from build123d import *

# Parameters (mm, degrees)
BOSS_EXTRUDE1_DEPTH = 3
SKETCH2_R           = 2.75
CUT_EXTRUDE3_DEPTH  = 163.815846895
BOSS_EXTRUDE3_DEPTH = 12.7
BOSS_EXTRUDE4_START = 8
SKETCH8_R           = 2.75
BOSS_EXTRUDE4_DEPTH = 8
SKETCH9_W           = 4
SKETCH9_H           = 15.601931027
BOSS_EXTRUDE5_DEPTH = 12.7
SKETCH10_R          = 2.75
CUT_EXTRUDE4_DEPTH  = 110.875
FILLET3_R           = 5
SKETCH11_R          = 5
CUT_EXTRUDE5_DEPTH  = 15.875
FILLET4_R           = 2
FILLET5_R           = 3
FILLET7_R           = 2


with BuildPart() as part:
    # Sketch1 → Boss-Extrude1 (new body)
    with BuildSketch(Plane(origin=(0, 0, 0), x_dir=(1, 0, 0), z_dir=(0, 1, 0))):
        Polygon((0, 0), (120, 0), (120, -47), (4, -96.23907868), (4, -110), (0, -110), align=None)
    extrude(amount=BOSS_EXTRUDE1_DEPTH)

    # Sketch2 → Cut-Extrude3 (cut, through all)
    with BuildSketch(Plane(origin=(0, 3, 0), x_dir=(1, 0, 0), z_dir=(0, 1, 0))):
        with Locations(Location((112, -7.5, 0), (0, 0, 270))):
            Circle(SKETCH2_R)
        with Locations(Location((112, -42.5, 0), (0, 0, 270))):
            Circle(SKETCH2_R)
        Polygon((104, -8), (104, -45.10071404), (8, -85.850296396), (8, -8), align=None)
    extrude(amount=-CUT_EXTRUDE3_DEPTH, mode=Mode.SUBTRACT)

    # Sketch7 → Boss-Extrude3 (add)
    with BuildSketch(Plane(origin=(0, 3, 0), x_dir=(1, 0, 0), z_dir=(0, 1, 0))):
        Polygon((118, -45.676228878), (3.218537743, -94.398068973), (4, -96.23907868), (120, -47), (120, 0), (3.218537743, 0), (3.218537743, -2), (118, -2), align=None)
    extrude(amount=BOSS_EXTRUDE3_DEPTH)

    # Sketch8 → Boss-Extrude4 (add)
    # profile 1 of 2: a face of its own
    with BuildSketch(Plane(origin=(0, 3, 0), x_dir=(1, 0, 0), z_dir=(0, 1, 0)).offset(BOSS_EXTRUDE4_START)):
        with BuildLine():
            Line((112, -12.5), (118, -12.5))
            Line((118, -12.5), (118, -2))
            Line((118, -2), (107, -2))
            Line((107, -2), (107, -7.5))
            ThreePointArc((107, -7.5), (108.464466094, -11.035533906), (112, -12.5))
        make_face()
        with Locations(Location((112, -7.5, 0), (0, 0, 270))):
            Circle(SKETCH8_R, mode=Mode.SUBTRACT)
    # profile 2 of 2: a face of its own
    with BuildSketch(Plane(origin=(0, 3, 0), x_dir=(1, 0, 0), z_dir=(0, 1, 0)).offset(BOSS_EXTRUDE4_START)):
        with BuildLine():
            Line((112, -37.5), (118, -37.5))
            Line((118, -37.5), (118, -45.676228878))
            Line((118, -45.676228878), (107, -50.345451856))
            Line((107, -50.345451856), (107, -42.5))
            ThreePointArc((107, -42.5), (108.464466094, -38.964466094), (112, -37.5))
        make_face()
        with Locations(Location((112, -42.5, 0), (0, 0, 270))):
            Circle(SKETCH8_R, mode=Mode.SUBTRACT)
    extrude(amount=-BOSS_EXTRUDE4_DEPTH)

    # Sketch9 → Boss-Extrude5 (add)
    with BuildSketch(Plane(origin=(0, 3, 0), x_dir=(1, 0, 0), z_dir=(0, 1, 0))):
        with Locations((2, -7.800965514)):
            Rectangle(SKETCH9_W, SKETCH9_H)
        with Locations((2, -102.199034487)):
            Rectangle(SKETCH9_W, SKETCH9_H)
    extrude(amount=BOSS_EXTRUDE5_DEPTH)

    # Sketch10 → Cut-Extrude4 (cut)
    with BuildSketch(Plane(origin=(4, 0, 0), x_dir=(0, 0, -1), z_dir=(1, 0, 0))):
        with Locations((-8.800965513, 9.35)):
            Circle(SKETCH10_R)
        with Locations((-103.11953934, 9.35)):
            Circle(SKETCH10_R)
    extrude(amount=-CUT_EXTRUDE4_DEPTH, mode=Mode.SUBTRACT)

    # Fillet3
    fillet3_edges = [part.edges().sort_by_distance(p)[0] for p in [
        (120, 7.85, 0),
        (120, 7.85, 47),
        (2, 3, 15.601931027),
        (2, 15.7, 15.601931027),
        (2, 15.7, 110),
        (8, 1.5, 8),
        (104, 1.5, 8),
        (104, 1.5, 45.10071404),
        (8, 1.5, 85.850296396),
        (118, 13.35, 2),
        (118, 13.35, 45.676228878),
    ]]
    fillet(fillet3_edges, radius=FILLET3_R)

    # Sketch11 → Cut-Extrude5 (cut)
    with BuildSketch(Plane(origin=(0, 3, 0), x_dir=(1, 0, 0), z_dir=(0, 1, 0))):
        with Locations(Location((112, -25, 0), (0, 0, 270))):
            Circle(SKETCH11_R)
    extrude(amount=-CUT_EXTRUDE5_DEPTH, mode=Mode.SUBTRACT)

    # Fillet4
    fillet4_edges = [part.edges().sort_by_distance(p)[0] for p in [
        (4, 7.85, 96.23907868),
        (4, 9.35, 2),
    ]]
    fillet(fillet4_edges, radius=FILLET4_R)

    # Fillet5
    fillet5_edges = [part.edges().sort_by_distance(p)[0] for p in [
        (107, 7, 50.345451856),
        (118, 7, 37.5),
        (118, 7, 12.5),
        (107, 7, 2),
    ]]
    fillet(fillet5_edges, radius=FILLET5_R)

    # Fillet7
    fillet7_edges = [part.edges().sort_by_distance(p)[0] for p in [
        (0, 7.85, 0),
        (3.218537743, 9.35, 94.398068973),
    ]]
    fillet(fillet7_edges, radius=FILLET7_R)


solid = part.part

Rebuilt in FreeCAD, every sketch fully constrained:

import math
import FreeCAD as App
import Part
import Sketcher
from FreeCAD import Vector
Q = App.Units.Quantity


def edges_at(feature, points):
    """Names of the edges that pass closest to the given points."""
    edges = feature.Shape.Edges
    near = lambda p: min(range(len(edges)), key=lambda i: edges[i].distToShape(Part.Vertex(*p))[0])
    return sorted({f"Edge{near(p) + 1}" for p in points})


def add_polygon(sketch, points):
    """Adds a closed chain of lines whose ends are joined by coincident constraints."""
    first, n = sketch.GeometryCount, len(points)
    for a, b in zip(points, points[1:] + points[:1]):
        sketch.addGeometry(Part.LineSegment(App.Vector(*a, 0), App.Vector(*b, 0)), False)
    for i in range(n):
        sketch.addConstraint(Sketcher.Constraint("Coincident", first + i, 2, first + (i + 1) % n, 1))

doc = App.newDocument("Part")
body = doc.addObject("PartDesign::Body", "Body")

# Sketch on XZ plane
sketch1 = doc.addObject("Sketcher::SketchObject", "Sketch")
body.addObject(sketch1)
sketch1.AttachmentSupport = (doc.XZ_Plane, [""])
sketch1.MapMode = "FlatFace"
add_polygon(sketch1, [(120, 0), (0, 0), (0, 110), (4, 110), (4, 96.2), (120, 47)])  # lines 0-5
sketch1.addConstraint(Sketcher.Constraint("Horizontal", 0))
sketch1.addConstraint(Sketcher.Constraint("Vertical", 1))
sketch1.addConstraint(Sketcher.Constraint("Horizontal", 2))
sketch1.addConstraint(Sketcher.Constraint("Vertical", 3))
sketch1.addConstraint(Sketcher.Constraint("Vertical", 5))
sketch1.addConstraint(Sketcher.Constraint("Coincident", 0, 2, -1, 1))
sketch1.addConstraint(Sketcher.Constraint("DistanceX", 0, 2, 0, 1, Q("120 mm")))
sketch1.addConstraint(Sketcher.Constraint("DistanceX", 2, 1, 2, 2, Q("4 mm")))
sketch1.addConstraint(Sketcher.Constraint("DistanceY", 1, 1, 1, 2, Q("110 mm")))
sketch1.addConstraint(Sketcher.Constraint("DistanceY", 5, 2, 5, 1, Q("47 mm")))
sketch1.addConstraint(Sketcher.Constraint("Angle", 4, Q("-23 deg")))
pad1 = doc.addObject("PartDesign::Pad", "Pad")
body.addObject(pad1)
pad1.Profile = sketch1
pad1.Length = 3
pad1.Reversed = True

# Sketch on XZ plane
sketch2 = doc.addObject("Sketcher::SketchObject", "Sketch001")
body.addObject(sketch2)
sketch2.AttachmentSupport = (doc.XZ_Plane, [""])
sketch2.MapMode = "FlatFace"
sketch2.AttachmentOffset = App.Placement(Vector(0, 0, -3), App.Rotation())
sketch2.addGeometry(Part.Circle(Vector(112, 7.5, 0), Vector(0, 0, 1), 2.8), False)  # 0
sketch2.addGeometry(Part.Circle(Vector(112, 42.5, 0), Vector(0, 0, 1), 2.8), False)  # 1
add_polygon(sketch2, [(104, 45.1), (104, 8), (8, 8), (8, 85.9)])  # lines 2-5
sketch2.addConstraint(Sketcher.Constraint("Vertical", 2))
sketch2.addConstraint(Sketcher.Constraint("Horizontal", 3))
sketch2.addConstraint(Sketcher.Constraint("Vertical", 4))
sketch2.addConstraint(Sketcher.Constraint("Equal", 0, 1))
sketch2.addConstraint(Sketcher.Constraint("Vertical", 0, 3, 1, 3))
sketch2.addConstraint(Sketcher.Constraint("Diameter", 0, Q("5.5 mm")))
sketch2.addConstraint(Sketcher.Constraint("DistanceX", 3, 2, 3, 1, Q("96 mm")))
sketch2.addConstraint(Sketcher.Constraint("Angle", 5, Q("-23 deg")))
sketch2.addConstraint(Sketcher.Constraint("DistanceX", -1, 1, 0, 3, Q("112 mm")))
sketch2.addConstraint(Sketcher.Constraint("DistanceX", -1, 1, 2, 2, Q("104 mm")))
sketch2.addConstraint(Sketcher.Constraint("DistanceY", -1, 1, 2, 2, Q("8 mm")))
sketch2.addConstraint(Sketcher.Constraint("DistanceY", 0, 3, 1, 3, Q("35 mm")))
sketch2.addConstraint(Sketcher.Constraint("DistanceY", -1, 1, 0, 3, Q("7.5 mm")))
sketch2.addConstraint(Sketcher.Constraint("DistanceY", 2, 2, 2, 1, Q("37.100714 mm")))
pocket1 = doc.addObject("PartDesign::Pocket", "Pocket")
body.addObject(pocket1)
pocket1.Profile = sketch2
pocket1.Type = "ThroughAll"
pocket1.Reversed = True

# Sketch on XZ plane
sketch3 = doc.addObject("Sketcher::SketchObject", "Sketch002")
body.addObject(sketch3)
sketch3.AttachmentSupport = (doc.XZ_Plane, [""])
sketch3.MapMode = "FlatFace"
sketch3.AttachmentOffset = App.Placement(Vector(0, 0, -3), App.Rotation())
add_polygon(sketch3, [(118, 45.7), (3.2, 94.4), (4, 96.2), (120, 47), (120, 0), (3.2, 0), (3.2, 2), (118, 2)])  # lines 0-7
sketch3.addConstraint(Sketcher.Constraint("Vertical", 3))
sketch3.addConstraint(Sketcher.Constraint("Horizontal", 4))
sketch3.addConstraint(Sketcher.Constraint("Vertical", 5))
sketch3.addConstraint(Sketcher.Constraint("Horizontal", 6))
sketch3.addConstraint(Sketcher.Constraint("Vertical", 7))
sketch3.addConstraint(Sketcher.Constraint("PointOnObject", 3, 2, -1))
sketch3.addConstraint(Sketcher.Constraint("Perpendicular", 0, 1))
sketch3.addConstraint(Sketcher.Constraint("Perpendicular", 1, 2))
sketch3.addConstraint(Sketcher.Constraint("Vertical", 0, 2, 4, 2))
sketch3.addConstraint(Sketcher.Constraint("DistanceY", 3, 2, 3, 1, Q("47 mm")))
sketch3.addConstraint(Sketcher.Constraint("DistanceY", 5, 1, 5, 2, Q("2 mm")))
sketch3.addConstraint(Sketcher.Constraint("Angle", 0, Q("157 deg")))
sketch3.addConstraint(Sketcher.Constraint("Distance", 1, Q("2 mm")))
sketch3.addConstraint(Sketcher.Constraint("DistanceX", -1, 1, 1, 2, Q("4 mm")))
sketch3.addConstraint(Sketcher.Constraint("DistanceX", -1, 1, 2, 2, Q("120 mm")))
sketch3.addConstraint(Sketcher.Constraint("DistanceX", -1, 1, 6, 2, Q("118 mm")))
pad2 = doc.addObject("PartDesign::Pad", "Pad001")
body.addObject(pad2)
pad2.Profile = sketch3
pad2.Length = 12.7
pad2.Reversed = True

# Sketch on XZ plane
sketch4 = doc.addObject("Sketcher::SketchObject", "Sketch003")
body.addObject(sketch4)
sketch4.AttachmentSupport = (doc.XZ_Plane, [""])
sketch4.MapMode = "FlatFace"
sketch4.AttachmentOffset = App.Placement(Vector(0, 0, -11), App.Rotation())
sketch4.addGeometry(Part.LineSegment(Vector(112, 12.5, 0), Vector(118, 12.5, 0)), False)
sketch4.addGeometry(Part.LineSegment(Vector(118, 12.5, 0), Vector(118, 2, 0)), False)
sketch4.addGeometry(Part.LineSegment(Vector(118, 2, 0), Vector(107, 2, 0)), False)
sketch4.addGeometry(Part.LineSegment(Vector(107, 2, 0), Vector(107, 7.5, 0)), False)
sketch4.addGeometry(Part.ArcOfCircle(Part.Circle(Vector(112, 7.5, 0), Vector(0, 0, 1), 5), math.radians(90), math.radians(180)), False)
sketch4.addGeometry(Part.Circle(Vector(112, 7.5, 0), Vector(0, 0, 1), 2.8), False)
sketch4.addGeometry(Part.LineSegment(Vector(118, 37.5, 0), Vector(112, 37.5, 0)), False)
sketch4.addGeometry(Part.ArcOfCircle(Part.Circle(Vector(112, 42.5, 0), Vector(0, 0, 1), 5), math.radians(180), math.radians(270)), False)
sketch4.addGeometry(Part.LineSegment(Vector(107, 42.5, 0), Vector(107, 50.3, 0)), False)
sketch4.addGeometry(Part.LineSegment(Vector(107, 50.3, 0), Vector(118, 45.7, 0)), False)
sketch4.addGeometry(Part.LineSegment(Vector(118, 45.7, 0), Vector(118, 37.5, 0)), False)
sketch4.addGeometry(Part.Circle(Vector(112, 42.5, 0), Vector(0, 0, 1), 2.8), False)
sketch4.addConstraint(Sketcher.Constraint("Coincident", 0, 2, 1, 1))
sketch4.addConstraint(Sketcher.Constraint("Coincident", 1, 2, 2, 1))
sketch4.addConstraint(Sketcher.Constraint("Coincident", 2, 2, 3, 1))
sketch4.addConstraint(Sketcher.Constraint("Tangent", 3, 2, 4, 2))
sketch4.addConstraint(Sketcher.Constraint("Tangent", 4, 1, 0, 1))
sketch4.addConstraint(Sketcher.Constraint("Tangent", 6, 2, 7, 2))
sketch4.addConstraint(Sketcher.Constraint("Tangent", 7, 1, 8, 1))
sketch4.addConstraint(Sketcher.Constraint("Coincident", 8, 2, 9, 1))
sketch4.addConstraint(Sketcher.Constraint("Coincident", 9, 2, 10, 1))
sketch4.addConstraint(Sketcher.Constraint("Coincident", 10, 2, 6, 1))
sketch4.addConstraint(Sketcher.Constraint("Horizontal", 0))
sketch4.addConstraint(Sketcher.Constraint("Vertical", 1))
sketch4.addConstraint(Sketcher.Constraint("Horizontal", 2))
sketch4.addConstraint(Sketcher.Constraint("Vertical", 3))
sketch4.addConstraint(Sketcher.Constraint("Horizontal", 6))
sketch4.addConstraint(Sketcher.Constraint("Vertical", 8))
sketch4.addConstraint(Sketcher.Constraint("Vertical", 10))
sketch4.addConstraint(Sketcher.Constraint("Coincident", 5, 3, 4, 3))
sketch4.addConstraint(Sketcher.Constraint("Coincident", 11, 3, 7, 3))
sketch4.addConstraint(Sketcher.Constraint("Equal", 4, 7))
sketch4.addConstraint(Sketcher.Constraint("Equal", 5, 11))
sketch4.addConstraint(Sketcher.Constraint("Vertical", 5, 3, 7, 3))
sketch4.addConstraint(Sketcher.Constraint("Vertical", 1, 2, 9, 2))
sketch4.addConstraint(Sketcher.Constraint("Radius", 4, Q("5 mm")))
sketch4.addConstraint(Sketcher.Constraint("Diameter", 5, Q("5.5 mm")))
sketch4.addConstraint(Sketcher.Constraint("DistanceX", 0, 1, 0, 2, Q("6 mm")))
sketch4.addConstraint(Sketcher.Constraint("Angle", 9, Q("-23 deg")))
sketch4.addConstraint(Sketcher.Constraint("DistanceY", 1, 2, 1, 1, Q("10.5 mm")))
sketch4.addConstraint(Sketcher.Constraint("DistanceX", -1, 1, 4, 3, Q("112 mm")))
sketch4.addConstraint(Sketcher.Constraint("DistanceY", -1, 1, 1, 2, Q("2 mm")))
sketch4.addConstraint(Sketcher.Constraint("DistanceY", 4, 3, 7, 3, Q("35 mm")))
sketch4.addConstraint(Sketcher.Constraint("DistanceY", 8, 1, 8, 2, Q("7.845452 mm")))
pad3 = doc.addObject("PartDesign::Pad", "Pad002")
body.addObject(pad3)
pad3.Profile = sketch4
pad3.Length = 8

# Sketch on XZ plane
sketch5 = doc.addObject("Sketcher::SketchObject", "Sketch004")
body.addObject(sketch5)
sketch5.AttachmentSupport = (doc.XZ_Plane, [""])
sketch5.MapMode = "FlatFace"
sketch5.AttachmentOffset = App.Placement(Vector(0, 0, -3), App.Rotation())
add_polygon(sketch5, [(0, 0), (0, 15.6), (4, 15.6), (4, 0)])  # lines 0-3
add_polygon(sketch5, [(0, 94.4), (0, 110), (4, 110), (4, 94.4)])  # lines 4-7
sketch5.addConstraint(Sketcher.Constraint("Vertical", 0))
sketch5.addConstraint(Sketcher.Constraint("Horizontal", 1))
sketch5.addConstraint(Sketcher.Constraint("Vertical", 2))
sketch5.addConstraint(Sketcher.Constraint("Horizontal", 3))
sketch5.addConstraint(Sketcher.Constraint("Vertical", 4))
sketch5.addConstraint(Sketcher.Constraint("Horizontal", 5))
sketch5.addConstraint(Sketcher.Constraint("Vertical", 6))
sketch5.addConstraint(Sketcher.Constraint("Horizontal", 7))
sketch5.addConstraint(Sketcher.Constraint("Coincident", 3, 2, -1, 1))
sketch5.addConstraint(Sketcher.Constraint("PointOnObject", 4, 2, -2))
sketch5.addConstraint(Sketcher.Constraint("Vertical", 2, 2, 5, 2))
sketch5.addConstraint(Sketcher.Constraint("Equal", 2, 4))
sketch5.addConstraint(Sketcher.Constraint("DistanceX", 1, 1, 1, 2, Q("4 mm")))
sketch5.addConstraint(Sketcher.Constraint("DistanceY", -1, 1, 4, 2, Q("110 mm")))
sketch5.addConstraint(Sketcher.Constraint("DistanceY", 0, 1, 0, 2, Q("15.601931 mm")))
pad4 = doc.addObject("PartDesign::Pad", "Pad003")
body.addObject(pad4)
pad4.Profile = sketch5
pad4.Length = 12.7
pad4.Reversed = True

# Sketch on YZ plane
sketch6 = doc.addObject("Sketcher::SketchObject", "Sketch005")
body.addObject(sketch6)
sketch6.AttachmentSupport = (doc.YZ_Plane, [""])
sketch6.MapMode = "FlatFace"
sketch6.AttachmentOffset = App.Placement(Vector(0, 0, 4), App.Rotation())
sketch6.addGeometry(Part.Circle(Vector(9.3, 8.8, 0), Vector(0, 0, 1), 2.8), False)
sketch6.addGeometry(Part.Circle(Vector(9.3, 103.1, 0), Vector(0, 0, 1), 2.8), False)
sketch6.addConstraint(Sketcher.Constraint("Equal", 0, 1))
sketch6.addConstraint(Sketcher.Constraint("Vertical", 0, 3, 1, 3))
sketch6.addConstraint(Sketcher.Constraint("Diameter", 0, Q("5.5 mm")))
sketch6.addConstraint(Sketcher.Constraint("DistanceX", -1, 1, 0, 3, Q("9.35 mm")))
sketch6.addConstraint(Sketcher.Constraint("DistanceY", -1, 1, 1, 3, Q("103.119539 mm")))
sketch6.addConstraint(Sketcher.Constraint("DistanceY", -1, 1, 0, 3, Q("8.800966 mm")))
pocket2 = doc.addObject("PartDesign::Pocket", "Pocket001")
body.addObject(pocket2)
pocket2.Profile = sketch6
pocket2.Length = 110.875
doc.recompute()

fillet = doc.addObject("PartDesign::Fillet", "Fillet")
body.addObject(fillet)
fillet.Base = (pocket2, edges_at(pocket2, [
    (120, 7.85, 0),
    (120, 7.85, 47),
    (2, 3, 15.602),
    (2, 15.7, 15.602),
    (2, 15.7, 110),
    (8, 1.5, 8),
    (104, 1.5, 8),
    (104, 1.5, 45.101),
    (8, 1.5, 85.85),
    (118, 13.35, 2),
    (118, 13.35, 45.676),
]))
fillet.Radius = 5

# Sketch on XZ plane
sketch7 = doc.addObject("Sketcher::SketchObject", "Sketch006")
body.addObject(sketch7)
sketch7.AttachmentSupport = (doc.XZ_Plane, [""])
sketch7.MapMode = "FlatFace"
sketch7.AttachmentOffset = App.Placement(Vector(0, 0, -3), App.Rotation())
sketch7.addGeometry(Part.Circle(Vector(112, 25, 0), Vector(0, 0, 1), 5), False)
sketch7.addConstraint(Sketcher.Constraint("Diameter", 0, Q("10 mm")))
sketch7.addConstraint(Sketcher.Constraint("DistanceX", -1, 1, 0, 3, Q("112 mm")))
sketch7.addConstraint(Sketcher.Constraint("DistanceY", -1, 1, 0, 3, Q("25 mm")))
pocket3 = doc.addObject("PartDesign::Pocket", "Pocket002")
body.addObject(pocket3)
pocket3.Profile = sketch7
pocket3.Length = 15.875
pocket3.Reversed = True
doc.recompute()

fillet2 = doc.addObject("PartDesign::Fillet", "Fillet001")
body.addObject(fillet2)
fillet2.Base = (pocket3, edges_at(pocket3, [(4, 7.85, 96.239), (4, 9.35, 2)]))
fillet2.Radius = 2
doc.recompute()

fillet3 = doc.addObject("PartDesign::Fillet", "Fillet002")
body.addObject(fillet3)
fillet3.Base = (fillet2, edges_at(fillet2, [
    (107, 7, 50.345),
    (118, 7, 37.5),
    (118, 7, 12.5),
    (107, 7, 2),
]))
fillet3.Radius = 3
doc.recompute()

fillet4 = doc.addObject("PartDesign::Fillet", "Fillet003")
body.addObject(fillet4)
fillet4.Base = (fillet3, edges_at(fillet3, [(0, 9.35, 0), (3.219, 9.35, 94.398)]))
fillet4.Radius = 2

doc.recompute()
